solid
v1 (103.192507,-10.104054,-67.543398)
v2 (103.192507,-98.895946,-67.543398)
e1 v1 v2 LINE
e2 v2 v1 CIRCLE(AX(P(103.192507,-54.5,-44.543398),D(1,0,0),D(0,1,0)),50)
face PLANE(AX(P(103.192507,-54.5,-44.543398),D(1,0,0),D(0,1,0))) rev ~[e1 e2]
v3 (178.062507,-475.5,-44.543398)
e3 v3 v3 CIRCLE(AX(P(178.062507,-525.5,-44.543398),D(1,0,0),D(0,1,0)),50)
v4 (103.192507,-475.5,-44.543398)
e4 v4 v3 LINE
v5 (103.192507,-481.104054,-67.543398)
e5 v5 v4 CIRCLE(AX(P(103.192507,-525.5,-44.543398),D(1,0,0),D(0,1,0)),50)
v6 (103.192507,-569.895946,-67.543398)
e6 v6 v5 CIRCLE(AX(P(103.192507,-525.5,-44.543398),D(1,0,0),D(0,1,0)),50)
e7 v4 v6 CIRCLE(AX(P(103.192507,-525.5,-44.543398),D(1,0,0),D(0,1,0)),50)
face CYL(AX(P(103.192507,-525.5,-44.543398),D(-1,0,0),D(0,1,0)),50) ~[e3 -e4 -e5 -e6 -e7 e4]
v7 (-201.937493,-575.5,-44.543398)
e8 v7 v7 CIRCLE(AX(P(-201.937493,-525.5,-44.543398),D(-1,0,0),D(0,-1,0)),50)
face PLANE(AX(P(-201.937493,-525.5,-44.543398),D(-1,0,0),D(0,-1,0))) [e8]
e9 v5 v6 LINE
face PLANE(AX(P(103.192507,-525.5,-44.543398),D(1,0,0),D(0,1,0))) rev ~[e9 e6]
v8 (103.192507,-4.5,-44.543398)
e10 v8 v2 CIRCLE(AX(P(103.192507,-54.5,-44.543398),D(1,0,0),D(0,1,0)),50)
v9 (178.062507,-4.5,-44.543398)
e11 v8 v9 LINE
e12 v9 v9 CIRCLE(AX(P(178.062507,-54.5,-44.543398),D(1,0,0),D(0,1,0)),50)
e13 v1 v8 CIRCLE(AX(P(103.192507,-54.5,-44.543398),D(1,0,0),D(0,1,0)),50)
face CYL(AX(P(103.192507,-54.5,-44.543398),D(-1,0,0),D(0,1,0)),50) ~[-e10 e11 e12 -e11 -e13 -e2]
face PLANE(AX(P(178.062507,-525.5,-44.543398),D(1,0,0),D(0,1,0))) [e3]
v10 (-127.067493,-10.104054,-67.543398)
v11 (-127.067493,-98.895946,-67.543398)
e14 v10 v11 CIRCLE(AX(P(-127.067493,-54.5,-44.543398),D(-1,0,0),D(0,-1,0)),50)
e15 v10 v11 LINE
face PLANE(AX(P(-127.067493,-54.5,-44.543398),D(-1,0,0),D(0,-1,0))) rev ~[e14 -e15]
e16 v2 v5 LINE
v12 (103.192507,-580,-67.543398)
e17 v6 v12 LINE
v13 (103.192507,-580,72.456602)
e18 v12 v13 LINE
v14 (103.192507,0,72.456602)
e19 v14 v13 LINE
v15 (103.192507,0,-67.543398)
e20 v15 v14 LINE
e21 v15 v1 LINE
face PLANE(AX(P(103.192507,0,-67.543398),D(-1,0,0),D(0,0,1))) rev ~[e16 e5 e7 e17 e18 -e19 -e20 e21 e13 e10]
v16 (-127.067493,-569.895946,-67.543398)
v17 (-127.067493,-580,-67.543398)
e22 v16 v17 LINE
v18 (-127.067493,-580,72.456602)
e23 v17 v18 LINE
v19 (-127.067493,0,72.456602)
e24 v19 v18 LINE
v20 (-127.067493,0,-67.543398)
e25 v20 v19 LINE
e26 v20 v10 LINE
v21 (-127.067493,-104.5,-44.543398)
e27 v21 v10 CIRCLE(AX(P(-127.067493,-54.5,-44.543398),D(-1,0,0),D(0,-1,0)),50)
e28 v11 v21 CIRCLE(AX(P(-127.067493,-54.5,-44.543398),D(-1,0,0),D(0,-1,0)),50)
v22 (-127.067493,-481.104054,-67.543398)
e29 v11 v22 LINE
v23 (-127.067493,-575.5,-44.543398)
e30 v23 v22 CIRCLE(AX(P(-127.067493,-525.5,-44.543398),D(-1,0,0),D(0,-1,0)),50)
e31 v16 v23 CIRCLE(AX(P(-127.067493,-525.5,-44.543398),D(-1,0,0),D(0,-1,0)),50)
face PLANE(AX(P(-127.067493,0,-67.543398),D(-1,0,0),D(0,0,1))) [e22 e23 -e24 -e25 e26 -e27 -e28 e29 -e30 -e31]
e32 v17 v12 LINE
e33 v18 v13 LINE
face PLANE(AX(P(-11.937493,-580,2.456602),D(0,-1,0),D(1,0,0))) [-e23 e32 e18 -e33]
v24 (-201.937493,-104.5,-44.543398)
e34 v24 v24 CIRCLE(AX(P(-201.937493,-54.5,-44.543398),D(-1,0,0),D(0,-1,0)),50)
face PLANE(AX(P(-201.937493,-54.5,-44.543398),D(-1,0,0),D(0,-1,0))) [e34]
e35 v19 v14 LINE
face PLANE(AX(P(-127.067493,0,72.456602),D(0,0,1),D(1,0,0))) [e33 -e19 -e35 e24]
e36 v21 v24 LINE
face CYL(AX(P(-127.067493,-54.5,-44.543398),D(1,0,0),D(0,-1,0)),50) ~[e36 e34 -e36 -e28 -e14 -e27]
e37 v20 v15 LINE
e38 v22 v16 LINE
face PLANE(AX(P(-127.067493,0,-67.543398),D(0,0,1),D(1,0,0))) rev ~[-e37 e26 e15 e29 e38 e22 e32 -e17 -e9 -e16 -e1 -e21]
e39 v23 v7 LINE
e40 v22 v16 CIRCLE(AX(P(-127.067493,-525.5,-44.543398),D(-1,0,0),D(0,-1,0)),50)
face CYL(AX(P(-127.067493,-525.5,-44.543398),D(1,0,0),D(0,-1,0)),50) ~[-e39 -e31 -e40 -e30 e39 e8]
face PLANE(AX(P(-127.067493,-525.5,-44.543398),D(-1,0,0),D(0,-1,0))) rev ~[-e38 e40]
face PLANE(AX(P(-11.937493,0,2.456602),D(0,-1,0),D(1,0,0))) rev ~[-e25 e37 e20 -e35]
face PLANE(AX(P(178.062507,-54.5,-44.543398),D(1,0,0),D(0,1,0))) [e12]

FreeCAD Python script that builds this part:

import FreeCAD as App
import Part
import Sketcher

V = App.Vector
Q = App.Units.Quantity

doc = App.newDocument("Part")
body = doc.addObject("PartDesign::Body", "Body")

# Sketch on XZ plane
sketch1 = body.newObject("Sketcher::SketchObject", "Sketch")
sketch1.AttachmentSupport = (doc.getObject("XZ_Plane"), [""])
sketch1.MapMode = "FlatFace"
sketch1.addGeometry(Part.LineSegment(V(-127, 72, 0), V(-127, -68, 0)), False)
sketch1.addGeometry(Part.LineSegment(V(-127, -68, 0), V(103, -68, 0)), False)
sketch1.addGeometry(Part.LineSegment(V(103, -68, 0), V(103, 72, 0)), False)
sketch1.addGeometry(Part.LineSegment(V(103, 72, 0), V(-127, 72, 0)), False)
sketch1.addConstraint(Sketcher.Constraint("Coincident", 0, 2, 1, 1))
sketch1.addConstraint(Sketcher.Constraint("Coincident", 1, 2, 2, 1))
sketch1.addConstraint(Sketcher.Constraint("Coincident", 2, 2, 3, 1))
sketch1.addConstraint(Sketcher.Constraint("Coincident", 3, 2, 0, 1))
sketch1.addConstraint(Sketcher.Constraint("Vertical", 0))
sketch1.addConstraint(Sketcher.Constraint("Horizontal", 1))
sketch1.addConstraint(Sketcher.Constraint("Vertical", 2))
sketch1.addConstraint(Sketcher.Constraint("Horizontal", 3))
sketch1.addConstraint(Sketcher.Constraint("DistanceY", 0, 2, 0, 1, Q("140 mm")))
sketch1.addConstraint(Sketcher.Constraint("DistanceX", 1, 1, 1, 2, Q("230.26 mm")))
sketch1.addConstraint(Sketcher.Constraint("DistanceX", 0, 2, -1, 1, Q("127.067493 mm")))
sketch1.addConstraint(Sketcher.Constraint("DistanceY", 0, 2, -1, 1, Q("67.543398 mm")))
pad1 = body.newObject("PartDesign::Pad", "Pad")
pad1.Profile = sketch1
pad1.Length = 580

# Sketch on YZ plane
sketch2 = body.newObject("Sketcher::SketchObject", "Sketch001")
sketch2.AttachmentSupport = (doc.getObject("YZ_Plane"), [""])
sketch2.MapMode = "FlatFace"
sketch2.AttachmentOffset = App.Placement(V(0, 0, -127.067493), App.Rotation())
sketch2.addGeometry(Part.Circle(V(-54, -45, 0), V(0, 0, 1), 50), False)
sketch2.addGeometry(Part.Circle(V(-526, -45, 0), V(0, 0, 1), 50), False)
sketch2.addConstraint(Sketcher.Constraint("Equal", 0, 1))
sketch2.addConstraint(Sketcher.Constraint("Horizontal", 0, 3, 1, 3))
sketch2.addConstraint(Sketcher.Constraint("Diameter", 0, Q("100 mm")))
sketch2.addConstraint(Sketcher.Constraint("DistanceX", 1, 3, 0, 3, Q("471 mm")))
sketch2.addConstraint(Sketcher.Constraint("DistanceX", 0, 3, -1, 1, Q("54.5 mm")))
sketch2.addConstraint(Sketcher.Constraint("DistanceY", 0, 3, -1, 1, Q("44.543398 mm")))
pad2 = body.newObject("PartDesign::Pad", "Pad001")
pad2.Profile = sketch2
pad2.Length = 74.87
pad2.Reversed = True

# Sketch on YZ plane
sketch3 = body.newObject("Sketcher::SketchObject", "Sketch002")
sketch3.AttachmentSupport = (doc.getObject("YZ_Plane"), [""])
sketch3.MapMode = "FlatFace"
sketch3.AttachmentOffset = App.Placement(V(0, 0, 103.192507), App.Rotation())
sketch3.addGeometry(Part.Circle(V(-526, -45, 0), V(0, 0, 1), 50), False)
sketch3.addGeometry(Part.Circle(V(-54, -45, 0), V(0, 0, 1), 50), False)
sketch3.addConstraint(Sketcher.Constraint("Equal", 0, 1))
sketch3.addConstraint(Sketcher.Constraint("Horizontal", 0, 3, 1, 3))
sketch3.addConstraint(Sketcher.Constraint("Diameter", 0, Q("100 mm")))
sketch3.addConstraint(Sketcher.Constraint("DistanceX", 0, 3, 1, 3, Q("471 mm")))
sketch3.addConstraint(Sketcher.Constraint("DistanceX", 0, 3, -1, 1, Q("525.5 mm")))
sketch3.addConstraint(Sketcher.Constraint("DistanceY", 0, 3, -1, 1, Q("44.543398 mm")))
pad3 = body.newObject("PartDesign::Pad", "Pad002")
pad3.Profile = sketch3
pad3.Length = 74.87

doc.recompute()
